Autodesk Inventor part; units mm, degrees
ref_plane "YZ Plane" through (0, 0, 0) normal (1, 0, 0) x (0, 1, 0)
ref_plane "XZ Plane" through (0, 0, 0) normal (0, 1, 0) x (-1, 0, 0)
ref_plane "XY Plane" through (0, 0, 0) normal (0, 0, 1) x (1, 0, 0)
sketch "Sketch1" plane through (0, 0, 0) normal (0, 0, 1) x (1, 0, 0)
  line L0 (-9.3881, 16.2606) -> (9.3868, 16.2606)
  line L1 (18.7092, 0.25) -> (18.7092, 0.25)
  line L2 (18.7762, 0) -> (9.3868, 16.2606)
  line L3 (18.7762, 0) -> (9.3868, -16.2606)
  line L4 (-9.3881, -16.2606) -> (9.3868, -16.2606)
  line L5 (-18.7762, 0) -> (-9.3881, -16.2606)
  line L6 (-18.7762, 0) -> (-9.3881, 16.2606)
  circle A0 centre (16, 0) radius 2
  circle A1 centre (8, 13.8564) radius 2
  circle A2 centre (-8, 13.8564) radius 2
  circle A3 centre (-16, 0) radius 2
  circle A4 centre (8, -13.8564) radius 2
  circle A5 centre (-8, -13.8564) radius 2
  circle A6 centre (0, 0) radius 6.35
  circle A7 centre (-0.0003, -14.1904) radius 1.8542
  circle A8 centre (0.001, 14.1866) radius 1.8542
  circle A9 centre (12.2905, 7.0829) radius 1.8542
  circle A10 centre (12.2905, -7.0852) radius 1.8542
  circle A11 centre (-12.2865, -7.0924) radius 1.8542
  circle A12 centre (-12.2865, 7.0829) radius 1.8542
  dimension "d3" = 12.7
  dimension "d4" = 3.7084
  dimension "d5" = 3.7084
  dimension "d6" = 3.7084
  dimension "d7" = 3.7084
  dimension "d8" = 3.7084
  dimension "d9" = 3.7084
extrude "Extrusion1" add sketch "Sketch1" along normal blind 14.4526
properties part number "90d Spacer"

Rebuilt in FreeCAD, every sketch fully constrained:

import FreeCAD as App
import Part
import Sketcher

V = App.Vector
Q = App.Units.Quantity

doc = App.newDocument("Part")
body = doc.addObject("PartDesign::Body", "Body")

# Sketch on XY plane
sketch1 = doc.addObject("Sketcher::SketchObject", "Sketch")
body.addObject(sketch1)
sketch1.AttachmentSupport = (doc.XY_Plane, [""])
sketch1.MapMode = "FlatFace"
sketch1.addGeometry([
    Part.LineSegment(V(9.4, 16.3, 0), V(-9.4, 16.3, 0)),  # 0
    Part.LineSegment(V(-9.4, 16.3, 0), V(-18.8, 0, 0)),  # 1
    Part.LineSegment(V(-18.8, 0, 0), V(-9.4, -16.3, 0)),  # 2
    Part.LineSegment(V(-9.4, -16.3, 0), V(9.4, -16.3, 0)),  # 3
    Part.LineSegment(V(9.4, -16.3, 0), V(18.8, 0, 0)),  # 4
    Part.LineSegment(V(18.8, 0, 0), V(9.4, 16.3, 0)),  # 5
    Part.Circle(V(-8, -13.9, 0), V(0, 0, 1), 2),  # 6
    Part.Circle(V(0, -14.2, 0), V(0, 0, 1), 1.9),  # 7
    Part.Circle(V(-12.3, -7.1, 0), V(0, 0, 1), 1.9),  # 8
    Part.Circle(V(8, -13.9, 0), V(0, 0, 1), 2),  # 9
    Part.Circle(V(12.3, -7.1, 0), V(0, 0, 1), 1.9),  # 10
    Part.Circle(V(-16, 0, 0), V(0, 0, 1), 2),  # 11
    Part.Circle(V(-12.3, 7.1, 0), V(0, 0, 1), 1.9),  # 12
    Part.Circle(V(-8, 13.9, 0), V(0, 0, 1), 2),  # 13
    Part.Circle(V(0, 0, 0), V(0, 0, 1), 6.3),  # 14
    Part.Circle(V(16, 0, 0), V(0, 0, 1), 2),  # 15
    Part.Circle(V(12.3, 7.1, 0), V(0, 0, 1), 1.9),  # 16
    Part.Circle(V(0, 14.2, 0), V(0, 0, 1), 1.9),  # 17
    Part.Circle(V(8, 13.9, 0), V(0, 0, 1), 2),  # 18
], False)
sketch1.addConstraint([
    Sketcher.Constraint("Coincident", 0, 2, 1, 1),
    Sketcher.Constraint("Coincident", 1, 2, 2, 1),
    Sketcher.Constraint("Coincident", 2, 2, 3, 1),
    Sketcher.Constraint("Coincident", 3, 2, 4, 1),
    Sketcher.Constraint("Coincident", 4, 2, 5, 1),
    Sketcher.Constraint("Coincident", 5, 2, 0, 1),
    Sketcher.Constraint("Horizontal", 0),
    Sketcher.Constraint("Horizontal", 3),
    Sketcher.Constraint("Coincident", 14, 3, -1, 1),
    Sketcher.Constraint("Equal", 7, 8),
    Sketcher.Constraint("Equal", 6, 9),
    Sketcher.Constraint("Equal", 8, 10),
    Sketcher.Constraint("Equal", 9, 11),
    Sketcher.Constraint("Equal", 10, 12),
    Sketcher.Constraint("Equal", 11, 13),
    Sketcher.Constraint("Equal", 13, 15),
    Sketcher.Constraint("Equal", 12, 16),
    Sketcher.Constraint("Equal", 16, 17),
    Sketcher.Constraint("Equal", 15, 18),
    Sketcher.Constraint("Symmetric", 9, 3, 13, 3, -1, 1),
    Sketcher.Constraint("Symmetric", 11, 3, 15, 3, -1, 1),
    Sketcher.Constraint("Symmetric", 6, 3, 18, 3, -1, 1),
    Sketcher.Constraint("Symmetric", 1, 2, 4, 2, -1, 1),
    Sketcher.Constraint("Symmetric", 6, 3, 9, 3, -2),
    Sketcher.Constraint("Symmetric", 0, 2, 2, 2, -1),
    Sketcher.Constraint("PointOnObject", 11, 3, -1),
    Sketcher.Constraint("PointOnObject", 1, 2, -1),
    Sketcher.Constraint("Parallel", 1, 4),
    Sketcher.Constraint("Parallel", 2, 5),
    Sketcher.Constraint("Horizontal", 12, 3, 16, 3),
    Sketcher.Constraint("Vertical", 8, 3, 12, 3),
    Sketcher.Constraint("Vertical", 10, 3, 16, 3),
    Sketcher.Constraint("Diameter", 14, Q("0.5 in")),
    Sketcher.Constraint("Diameter", 7, Q("0.146 in")),
    Sketcher.Constraint("DistanceX", 7, 3, -1, 1, Q("0 in")),
    Sketcher.Constraint("Angle", 1, Q("-120 deg")),
    Sketcher.Constraint("Diameter", 6, Q("4 mm")),
    Sketcher.Constraint("DistanceX", 13, 3, 17, 3, Q("0.315 in")),
    Sketcher.Constraint("DistanceY", 13, 3, 17, 3, Q("0.013 in")),
    Sketcher.Constraint("DistanceX", 0, 2, 0, 1, Q("18.775 mm")),
    Sketcher.Constraint("DistanceY", 6, 3, 8, 3, Q("0.2663 in")),
    Sketcher.Constraint("DistanceX", 8, 3, 7, 3, Q("0.4837 in")),
    Sketcher.Constraint("DistanceX", 7, 3, 10, 3, Q("0.4839 in")),
    Sketcher.Constraint("DistanceX", 11, 3, 8, 3, Q("0.1462 in")),
    Sketcher.Constraint("DistanceY", 10, 3, 12, 3, Q("0.5578 in")),
    Sketcher.Constraint("DistanceX", 1, 2, 11, 3, Q("0.1093 in")),
    Sketcher.Constraint("DistanceY", 2, 2, 7, 3, Q("0.0815 in")),
    Sketcher.Constraint("DistanceX", 9, 3, 3, 2, Q("0.0546 in")),
    Sketcher.Constraint("DistanceY", 6, 3, -1, 1, Q("13.8564 mm")),
    Sketcher.Constraint("DistanceY", 10, 3, -1, 1, Q("7.0852 mm")),
])
pad1 = doc.addObject("PartDesign::Pad", "Pad")
body.addObject(pad1)
pad1.Profile = sketch1
pad1.Length = Q("0.569 in")

doc.recompute()
